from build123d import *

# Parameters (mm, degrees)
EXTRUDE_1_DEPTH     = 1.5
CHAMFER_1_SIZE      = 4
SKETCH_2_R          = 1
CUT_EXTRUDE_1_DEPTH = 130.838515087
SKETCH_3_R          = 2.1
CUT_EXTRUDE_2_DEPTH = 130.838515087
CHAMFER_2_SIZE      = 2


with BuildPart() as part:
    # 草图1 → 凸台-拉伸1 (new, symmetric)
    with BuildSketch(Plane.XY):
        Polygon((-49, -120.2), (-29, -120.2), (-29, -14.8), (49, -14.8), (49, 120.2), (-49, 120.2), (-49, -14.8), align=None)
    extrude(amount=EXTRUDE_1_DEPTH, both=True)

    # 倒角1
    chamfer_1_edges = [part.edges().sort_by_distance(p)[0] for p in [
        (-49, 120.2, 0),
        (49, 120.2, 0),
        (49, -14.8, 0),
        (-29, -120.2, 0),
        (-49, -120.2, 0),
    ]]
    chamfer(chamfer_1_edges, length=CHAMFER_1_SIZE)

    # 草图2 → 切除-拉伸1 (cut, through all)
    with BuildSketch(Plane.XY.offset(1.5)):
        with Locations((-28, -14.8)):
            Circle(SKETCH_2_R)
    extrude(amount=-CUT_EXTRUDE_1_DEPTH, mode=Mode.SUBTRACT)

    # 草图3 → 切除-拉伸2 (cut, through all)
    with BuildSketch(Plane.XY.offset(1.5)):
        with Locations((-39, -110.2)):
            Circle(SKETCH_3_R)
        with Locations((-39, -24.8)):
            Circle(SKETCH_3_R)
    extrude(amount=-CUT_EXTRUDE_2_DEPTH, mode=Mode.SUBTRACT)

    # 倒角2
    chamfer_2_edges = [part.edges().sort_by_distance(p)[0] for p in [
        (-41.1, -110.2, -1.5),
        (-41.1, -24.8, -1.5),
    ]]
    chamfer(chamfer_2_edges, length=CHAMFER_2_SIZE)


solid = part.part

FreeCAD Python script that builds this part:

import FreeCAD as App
import Part
import Sketcher


def edges_at(feature, points):
    """Names of the edges that pass closest to the given points."""
    edges = feature.Shape.Edges
    near = lambda p: min(range(len(edges)), key=lambda i: edges[i].distToShape(Part.Vertex(*p))[0])
    return sorted({f"Edge{near(p) + 1}" for p in points})


def add_polygon(sketch, points):
    """Adds a closed chain of lines whose ends are joined by coincident constraints."""
    first, n = sketch.GeometryCount, len(points)
    for a, b in zip(points, points[1:] + points[:1]):
        sketch.addGeometry(Part.LineSegment(App.Vector(*a, 0), App.Vector(*b, 0)), False)
    for i in range(n):
        sketch.addConstraint(Sketcher.Constraint("Coincident", first + i, 2, first + (i + 1) % n, 1))

doc = App.newDocument("Part")
body = doc.addObject("PartDesign::Body", "Body")

sketch1 = body.newObject("Sketcher::SketchObject", "Sketch")
sketch1.AttachmentSupport = (doc.getObject("XY_Plane"), [""])
sketch1.MapMode = "FlatFace"
add_polygon(sketch1, [(-49, -120), (-29, -120), (-29, -15), (49, -15), (49, 120), (-49, 120)])
sketch1.addConstraint(Sketcher.Constraint("Horizontal", 0))
sketch1.addConstraint(Sketcher.Constraint("Vertical", 1))
sketch1.addConstraint(Sketcher.Constraint("Horizontal", 2))
sketch1.addConstraint(Sketcher.Constraint("Vertical", 3))
sketch1.addConstraint(Sketcher.Constraint("Horizontal", 4))
sketch1.addConstraint(Sketcher.Constraint("Vertical", 5))
sketch1.addConstraint(Sketcher.Constraint("Symmetric", 3, 2, 5, 2, -1, 1))
sketch1.addConstraint(Sketcher.Constraint("DistanceX", 0, 1, 0, 2, 20.0))
sketch1.addConstraint(Sketcher.Constraint("DistanceX", 2, 1, 2, 2, 78.0))
sketch1.addConstraint(Sketcher.Constraint("DistanceY", 3, 1, 3, 2, 135.0))
sketch1.addConstraint(Sketcher.Constraint("DistanceY", 1, 1, 1, 2, 105.4))
pad1 = body.newObject("PartDesign::Pad", "Pad")
pad1.Profile = sketch1
pad1.Length = 3
pad1.Midplane = True
doc.recompute()

chamfer = body.newObject("PartDesign::Chamfer", "Chamfer")
chamfer.Base = (pad1, edges_at(pad1, [
    (-49, 120.2, 0),
    (49, 120.2, 0),
    (49, -14.8, 0),
    (-29, -120.2, 0),
    (-49, -120.2, 0),
]))
chamfer.Size = 4

sketch2 = body.newObject("Sketcher::SketchObject", "Sketch001")
sketch2.AttachmentSupport = (doc.getObject("XY_Plane"), [""])
sketch2.MapMode = "FlatFace"
sketch2.AttachmentOffset = App.Placement(App.Vector(0, 0, 1.5), App.Rotation())
sketch2.addGeometry(Part.Circle(App.Vector(-28, -14.8, 0), App.Vector(0, 0, 1), 1), False)
sketch2.addConstraint(Sketcher.Constraint("Diameter", 0, 2.0))
sketch2.addConstraint(Sketcher.Constraint("DistanceX", 0, 3, -1, 1, 28.0))
sketch2.addConstraint(Sketcher.Constraint("DistanceY", 0, 3, -1, 1, 14.8))
pocket1 = body.newObject("PartDesign::Pocket", "Pocket")
pocket1.Profile = sketch2
pocket1.Type = "ThroughAll"

sketch3 = body.newObject("Sketcher::SketchObject", "Sketch002")
sketch3.AttachmentSupport = (doc.getObject("XY_Plane"), [""])
sketch3.MapMode = "FlatFace"
sketch3.AttachmentOffset = App.Placement(App.Vector(0, 0, 1.5), App.Rotation())
sketch3.addGeometry(Part.Circle(App.Vector(-39, -110.2, 0), App.Vector(0, 0, 1), 2.1), False)
sketch3.addGeometry(Part.Circle(App.Vector(-39, -24.8, 0), App.Vector(0, 0, 1), 2.1), False)
sketch3.addConstraint(Sketcher.Constraint("Equal", 0, 1))
sketch3.addConstraint(Sketcher.Constraint("Vertical", 0, 3, 1, 3))
sketch3.addConstraint(Sketcher.Constraint("Diameter", 0, 4.2))
sketch3.addConstraint(Sketcher.Constraint("DistanceX", 0, 3, -1, 1, 39.0))
sketch3.addConstraint(Sketcher.Constraint("DistanceY", 0, 3, -1, 1, 110.2))
sketch3.addConstraint(Sketcher.Constraint("DistanceY", 1, 3, -1, 1, 24.8))
pocket2 = body.newObject("PartDesign::Pocket", "Pocket001")
pocket2.Profile = sketch3
pocket2.Type = "ThroughAll"
doc.recompute()

chamfer2 = body.newObject("PartDesign::Chamfer", "Chamfer001")
chamfer2.Base = (pocket2, edges_at(pocket2, [(-41.1, -110.2, -1.5), (-41.1, -24.8, -1.5)]))
chamfer2.Size = 2

doc.recompute()
